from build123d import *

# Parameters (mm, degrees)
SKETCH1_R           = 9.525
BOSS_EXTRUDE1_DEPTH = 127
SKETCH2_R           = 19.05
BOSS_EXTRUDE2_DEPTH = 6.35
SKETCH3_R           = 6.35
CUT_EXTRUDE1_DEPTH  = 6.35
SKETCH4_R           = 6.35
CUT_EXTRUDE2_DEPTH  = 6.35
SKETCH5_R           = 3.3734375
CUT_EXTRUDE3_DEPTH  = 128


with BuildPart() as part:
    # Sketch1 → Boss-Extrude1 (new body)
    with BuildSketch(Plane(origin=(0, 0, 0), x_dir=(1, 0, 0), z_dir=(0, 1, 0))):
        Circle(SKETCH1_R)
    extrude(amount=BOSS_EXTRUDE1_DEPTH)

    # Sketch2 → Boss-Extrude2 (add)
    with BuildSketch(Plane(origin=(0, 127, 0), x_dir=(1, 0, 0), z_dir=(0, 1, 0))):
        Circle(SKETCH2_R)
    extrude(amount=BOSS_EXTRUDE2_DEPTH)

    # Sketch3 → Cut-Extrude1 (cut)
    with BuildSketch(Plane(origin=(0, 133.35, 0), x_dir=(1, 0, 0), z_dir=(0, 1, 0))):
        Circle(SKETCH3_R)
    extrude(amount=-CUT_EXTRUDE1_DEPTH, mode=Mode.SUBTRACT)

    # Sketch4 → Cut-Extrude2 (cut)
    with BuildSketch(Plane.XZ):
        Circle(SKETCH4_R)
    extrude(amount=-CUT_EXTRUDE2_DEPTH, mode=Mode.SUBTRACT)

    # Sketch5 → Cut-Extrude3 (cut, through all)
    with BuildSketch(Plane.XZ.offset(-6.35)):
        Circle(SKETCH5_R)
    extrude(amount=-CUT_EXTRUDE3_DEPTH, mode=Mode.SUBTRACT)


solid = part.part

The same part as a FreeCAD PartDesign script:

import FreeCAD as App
import Part
import Sketcher
Q = App.Units.Quantity

doc = App.newDocument("Part")
params = doc.addObject("Spreadsheet::Sheet", "Params")
for row, (alias, value) in enumerate([
    ("sketch1_diameter", "0.75 in"),
    ("pad1_length", "5 in"),
    ("sketch2_diameter", "1.5 in"),
    ("pad2_length", "0.25 in"),
    ("sketch3_diameter", "0.5 in"),
    ("pocket1_length", "0.25 in"),
    ("sketch4_diameter", "0.5 in"),
    ("pocket2_length", "0.25 in"),
    ("sketch5_diameter", "0.265625 in"),
], start=1):
    params.set(f"A{row}", alias)
    params.set(f"B{row}", "=" + value)
    params.setAlias(f"B{row}", alias)

body = doc.addObject("PartDesign::Body", "Body")

# Sketch on XZ plane
sketch1 = body.newObject("Sketcher::SketchObject", "Sketch")
sketch1.AttachmentSupport = (doc.getObject("XZ_Plane"), [""])
sketch1.MapMode = "FlatFace"
sketch1.addGeometry(Part.Circle(App.Vector(0, 0, 0), App.Vector(0, 0, 1), 10), False)
sketch1.addConstraint([
    Sketcher.Constraint("Coincident", 0, 3, -1, 1),
    Sketcher.Constraint("Diameter", 0, Q("0.75 in")),
])
sketch1.setExpression("Constraints[1]", "Params.sketch1_diameter")
pad1 = body.newObject("PartDesign::Pad", "Pad")
pad1.Profile = sketch1
pad1.setExpression("Length", "Params.pad1_length")
pad1.Reversed = True

# Sketch on XZ plane
sketch2 = body.newObject("Sketcher::SketchObject", "Sketch001")
sketch2.AttachmentSupport = (doc.getObject("XZ_Plane"), [""])
sketch2.MapMode = "FlatFace"
sketch2.AttachmentOffset = App.Placement(App.Vector(0, 0, -5 * 25.4), App.Rotation())
sketch2.addGeometry(Part.Circle(App.Vector(0, 0, 0), App.Vector(0, 0, 1), 19), False)
sketch2.addConstraint([
    Sketcher.Constraint("Coincident", 0, 3, -1, 1),
    Sketcher.Constraint("Diameter", 0, Q("1.5 in")),
])
sketch2.setExpression("Constraints[1]", "Params.sketch2_diameter")
pad2 = body.newObject("PartDesign::Pad", "Pad001")
pad2.Profile = sketch2
pad2.setExpression("Length", "Params.pad2_length")
pad2.Reversed = True

# Sketch on XZ plane
sketch3 = body.newObject("Sketcher::SketchObject", "Sketch002")
sketch3.AttachmentSupport = (doc.getObject("XZ_Plane"), [""])
sketch3.MapMode = "FlatFace"
sketch3.AttachmentOffset = App.Placement(App.Vector(0, 0, -5.25 * 25.4), App.Rotation())
sketch3.addGeometry(Part.Circle(App.Vector(0, 0, 0), App.Vector(0, 0, 1), 6), False)
sketch3.addConstraint([
    Sketcher.Constraint("Coincident", 0, 3, -1, 1),
    Sketcher.Constraint("Diameter", 0, Q("0.5 in")),
])
sketch3.setExpression("Constraints[1]", "Params.sketch3_diameter")
pocket1 = body.newObject("PartDesign::Pocket", "Pocket")
pocket1.Profile = sketch3
pocket1.setExpression("Length", "Params.pocket1_length")
pocket1.Reversed = True

# Sketch on XZ plane
sketch4 = body.newObject("Sketcher::SketchObject", "Sketch003")
sketch4.AttachmentSupport = (doc.getObject("XZ_Plane"), [""])
sketch4.MapMode = "FlatFace"
sketch4.addGeometry(Part.Circle(App.Vector(0, 0, 0), App.Vector(0, 0, 1), 6), False)
sketch4.addConstraint([
    Sketcher.Constraint("Coincident", 0, 3, -1, 1),
    Sketcher.Constraint("Diameter", 0, Q("0.5 in")),
])
sketch4.setExpression("Constraints[1]", "Params.sketch4_diameter")
pocket2 = body.newObject("PartDesign::Pocket", "Pocket001")
pocket2.Profile = sketch4
pocket2.setExpression("Length", "Params.pocket2_length")

# Sketch on XZ plane
sketch5 = body.newObject("Sketcher::SketchObject", "Sketch004")
sketch5.AttachmentSupport = (doc.getObject("XZ_Plane"), [""])
sketch5.MapMode = "FlatFace"
sketch5.AttachmentOffset = App.Placement(App.Vector(0, 0, -0.25 * 25.4), App.Rotation())
sketch5.addGeometry(Part.Circle(App.Vector(0, 0, 0), App.Vector(0, 0, 1), 3.4), False)
sketch5.addConstraint([
    Sketcher.Constraint("Coincident", 0, 3, -1, 1),
    Sketcher.Constraint("Diameter", 0, Q("0.265625 in")),
])
sketch5.setExpression("Constraints[1]", "Params.sketch5_diameter")
pocket3 = body.newObject("PartDesign::Pocket", "Pocket002")
pocket3.Profile = sketch5
pocket3.Type = "ThroughAll"

doc.recompute()
